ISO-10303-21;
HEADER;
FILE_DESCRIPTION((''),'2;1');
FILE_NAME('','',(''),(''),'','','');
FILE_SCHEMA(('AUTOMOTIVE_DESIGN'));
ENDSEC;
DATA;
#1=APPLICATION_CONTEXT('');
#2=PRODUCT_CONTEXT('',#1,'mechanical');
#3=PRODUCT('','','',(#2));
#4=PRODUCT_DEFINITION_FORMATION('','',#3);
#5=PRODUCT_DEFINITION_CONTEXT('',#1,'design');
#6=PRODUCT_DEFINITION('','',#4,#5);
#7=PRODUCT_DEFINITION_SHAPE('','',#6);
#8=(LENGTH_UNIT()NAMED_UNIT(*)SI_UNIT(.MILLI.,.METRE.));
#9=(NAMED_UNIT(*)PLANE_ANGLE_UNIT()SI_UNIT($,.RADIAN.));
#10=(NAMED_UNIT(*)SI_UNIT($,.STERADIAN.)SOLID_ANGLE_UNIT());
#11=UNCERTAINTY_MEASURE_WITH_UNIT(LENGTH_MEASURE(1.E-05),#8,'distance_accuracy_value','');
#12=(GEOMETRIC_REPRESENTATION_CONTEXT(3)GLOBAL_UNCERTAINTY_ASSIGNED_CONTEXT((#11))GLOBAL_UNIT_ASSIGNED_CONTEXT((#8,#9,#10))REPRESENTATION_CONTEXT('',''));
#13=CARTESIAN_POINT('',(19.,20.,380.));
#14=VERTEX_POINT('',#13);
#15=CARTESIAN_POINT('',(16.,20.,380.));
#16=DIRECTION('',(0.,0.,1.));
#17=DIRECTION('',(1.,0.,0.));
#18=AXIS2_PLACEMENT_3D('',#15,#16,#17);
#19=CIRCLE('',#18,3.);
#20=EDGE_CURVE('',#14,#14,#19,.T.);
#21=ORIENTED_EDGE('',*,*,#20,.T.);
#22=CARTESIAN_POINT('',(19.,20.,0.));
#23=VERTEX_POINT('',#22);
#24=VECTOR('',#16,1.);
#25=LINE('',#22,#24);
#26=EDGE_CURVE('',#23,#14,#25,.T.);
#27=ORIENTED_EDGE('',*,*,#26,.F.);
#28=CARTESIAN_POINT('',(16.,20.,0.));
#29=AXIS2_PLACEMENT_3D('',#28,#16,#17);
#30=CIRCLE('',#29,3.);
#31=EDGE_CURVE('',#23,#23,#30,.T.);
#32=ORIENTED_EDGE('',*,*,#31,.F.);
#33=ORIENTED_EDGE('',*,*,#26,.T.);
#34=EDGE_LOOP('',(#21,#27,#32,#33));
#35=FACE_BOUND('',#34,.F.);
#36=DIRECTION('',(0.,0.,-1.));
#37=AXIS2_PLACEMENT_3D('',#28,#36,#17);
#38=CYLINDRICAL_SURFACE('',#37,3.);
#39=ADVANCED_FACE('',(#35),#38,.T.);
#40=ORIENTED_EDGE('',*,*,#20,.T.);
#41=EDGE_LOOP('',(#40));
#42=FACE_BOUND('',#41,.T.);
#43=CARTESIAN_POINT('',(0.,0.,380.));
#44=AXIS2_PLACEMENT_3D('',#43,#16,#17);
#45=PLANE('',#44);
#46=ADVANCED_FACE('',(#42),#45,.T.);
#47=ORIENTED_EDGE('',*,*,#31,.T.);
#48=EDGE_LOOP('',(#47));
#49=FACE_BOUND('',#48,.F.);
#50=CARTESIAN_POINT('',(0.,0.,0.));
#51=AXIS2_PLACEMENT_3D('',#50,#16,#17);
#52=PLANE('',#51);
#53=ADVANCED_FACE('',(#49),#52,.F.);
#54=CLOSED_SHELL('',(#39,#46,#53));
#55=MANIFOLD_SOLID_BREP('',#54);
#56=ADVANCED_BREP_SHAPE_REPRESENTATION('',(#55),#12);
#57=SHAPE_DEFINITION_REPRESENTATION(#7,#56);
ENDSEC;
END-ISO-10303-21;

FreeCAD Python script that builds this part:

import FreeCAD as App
import Part
import Sketcher

V = App.Vector
Q = App.Units.Quantity

doc = App.newDocument("Part")
body = doc.addObject("PartDesign::Body", "Body")

# Sketch on XY plane
sketch1 = body.newObject("Sketcher::SketchObject", "Sketch")
sketch1.AttachmentSupport = (doc.getObject("XY_Plane"), [""])
sketch1.MapMode = "FlatFace"
sketch1.addGeometry(Part.Circle(V(16, 20, 0), V(0, 0, 1), 3), False)
sketch1.addConstraint(Sketcher.Constraint("Diameter", 0, Q("6 mm")))
sketch1.addConstraint(Sketcher.Constraint("DistanceX", -1, 1, 0, 3, Q("16 mm")))
sketch1.addConstraint(Sketcher.Constraint("DistanceY", -1, 1, 0, 3, Q("20 mm")))
pad1 = body.newObject("PartDesign::Pad", "Pad")
pad1.Profile = sketch1
pad1.Length = 380

doc.recompute()
